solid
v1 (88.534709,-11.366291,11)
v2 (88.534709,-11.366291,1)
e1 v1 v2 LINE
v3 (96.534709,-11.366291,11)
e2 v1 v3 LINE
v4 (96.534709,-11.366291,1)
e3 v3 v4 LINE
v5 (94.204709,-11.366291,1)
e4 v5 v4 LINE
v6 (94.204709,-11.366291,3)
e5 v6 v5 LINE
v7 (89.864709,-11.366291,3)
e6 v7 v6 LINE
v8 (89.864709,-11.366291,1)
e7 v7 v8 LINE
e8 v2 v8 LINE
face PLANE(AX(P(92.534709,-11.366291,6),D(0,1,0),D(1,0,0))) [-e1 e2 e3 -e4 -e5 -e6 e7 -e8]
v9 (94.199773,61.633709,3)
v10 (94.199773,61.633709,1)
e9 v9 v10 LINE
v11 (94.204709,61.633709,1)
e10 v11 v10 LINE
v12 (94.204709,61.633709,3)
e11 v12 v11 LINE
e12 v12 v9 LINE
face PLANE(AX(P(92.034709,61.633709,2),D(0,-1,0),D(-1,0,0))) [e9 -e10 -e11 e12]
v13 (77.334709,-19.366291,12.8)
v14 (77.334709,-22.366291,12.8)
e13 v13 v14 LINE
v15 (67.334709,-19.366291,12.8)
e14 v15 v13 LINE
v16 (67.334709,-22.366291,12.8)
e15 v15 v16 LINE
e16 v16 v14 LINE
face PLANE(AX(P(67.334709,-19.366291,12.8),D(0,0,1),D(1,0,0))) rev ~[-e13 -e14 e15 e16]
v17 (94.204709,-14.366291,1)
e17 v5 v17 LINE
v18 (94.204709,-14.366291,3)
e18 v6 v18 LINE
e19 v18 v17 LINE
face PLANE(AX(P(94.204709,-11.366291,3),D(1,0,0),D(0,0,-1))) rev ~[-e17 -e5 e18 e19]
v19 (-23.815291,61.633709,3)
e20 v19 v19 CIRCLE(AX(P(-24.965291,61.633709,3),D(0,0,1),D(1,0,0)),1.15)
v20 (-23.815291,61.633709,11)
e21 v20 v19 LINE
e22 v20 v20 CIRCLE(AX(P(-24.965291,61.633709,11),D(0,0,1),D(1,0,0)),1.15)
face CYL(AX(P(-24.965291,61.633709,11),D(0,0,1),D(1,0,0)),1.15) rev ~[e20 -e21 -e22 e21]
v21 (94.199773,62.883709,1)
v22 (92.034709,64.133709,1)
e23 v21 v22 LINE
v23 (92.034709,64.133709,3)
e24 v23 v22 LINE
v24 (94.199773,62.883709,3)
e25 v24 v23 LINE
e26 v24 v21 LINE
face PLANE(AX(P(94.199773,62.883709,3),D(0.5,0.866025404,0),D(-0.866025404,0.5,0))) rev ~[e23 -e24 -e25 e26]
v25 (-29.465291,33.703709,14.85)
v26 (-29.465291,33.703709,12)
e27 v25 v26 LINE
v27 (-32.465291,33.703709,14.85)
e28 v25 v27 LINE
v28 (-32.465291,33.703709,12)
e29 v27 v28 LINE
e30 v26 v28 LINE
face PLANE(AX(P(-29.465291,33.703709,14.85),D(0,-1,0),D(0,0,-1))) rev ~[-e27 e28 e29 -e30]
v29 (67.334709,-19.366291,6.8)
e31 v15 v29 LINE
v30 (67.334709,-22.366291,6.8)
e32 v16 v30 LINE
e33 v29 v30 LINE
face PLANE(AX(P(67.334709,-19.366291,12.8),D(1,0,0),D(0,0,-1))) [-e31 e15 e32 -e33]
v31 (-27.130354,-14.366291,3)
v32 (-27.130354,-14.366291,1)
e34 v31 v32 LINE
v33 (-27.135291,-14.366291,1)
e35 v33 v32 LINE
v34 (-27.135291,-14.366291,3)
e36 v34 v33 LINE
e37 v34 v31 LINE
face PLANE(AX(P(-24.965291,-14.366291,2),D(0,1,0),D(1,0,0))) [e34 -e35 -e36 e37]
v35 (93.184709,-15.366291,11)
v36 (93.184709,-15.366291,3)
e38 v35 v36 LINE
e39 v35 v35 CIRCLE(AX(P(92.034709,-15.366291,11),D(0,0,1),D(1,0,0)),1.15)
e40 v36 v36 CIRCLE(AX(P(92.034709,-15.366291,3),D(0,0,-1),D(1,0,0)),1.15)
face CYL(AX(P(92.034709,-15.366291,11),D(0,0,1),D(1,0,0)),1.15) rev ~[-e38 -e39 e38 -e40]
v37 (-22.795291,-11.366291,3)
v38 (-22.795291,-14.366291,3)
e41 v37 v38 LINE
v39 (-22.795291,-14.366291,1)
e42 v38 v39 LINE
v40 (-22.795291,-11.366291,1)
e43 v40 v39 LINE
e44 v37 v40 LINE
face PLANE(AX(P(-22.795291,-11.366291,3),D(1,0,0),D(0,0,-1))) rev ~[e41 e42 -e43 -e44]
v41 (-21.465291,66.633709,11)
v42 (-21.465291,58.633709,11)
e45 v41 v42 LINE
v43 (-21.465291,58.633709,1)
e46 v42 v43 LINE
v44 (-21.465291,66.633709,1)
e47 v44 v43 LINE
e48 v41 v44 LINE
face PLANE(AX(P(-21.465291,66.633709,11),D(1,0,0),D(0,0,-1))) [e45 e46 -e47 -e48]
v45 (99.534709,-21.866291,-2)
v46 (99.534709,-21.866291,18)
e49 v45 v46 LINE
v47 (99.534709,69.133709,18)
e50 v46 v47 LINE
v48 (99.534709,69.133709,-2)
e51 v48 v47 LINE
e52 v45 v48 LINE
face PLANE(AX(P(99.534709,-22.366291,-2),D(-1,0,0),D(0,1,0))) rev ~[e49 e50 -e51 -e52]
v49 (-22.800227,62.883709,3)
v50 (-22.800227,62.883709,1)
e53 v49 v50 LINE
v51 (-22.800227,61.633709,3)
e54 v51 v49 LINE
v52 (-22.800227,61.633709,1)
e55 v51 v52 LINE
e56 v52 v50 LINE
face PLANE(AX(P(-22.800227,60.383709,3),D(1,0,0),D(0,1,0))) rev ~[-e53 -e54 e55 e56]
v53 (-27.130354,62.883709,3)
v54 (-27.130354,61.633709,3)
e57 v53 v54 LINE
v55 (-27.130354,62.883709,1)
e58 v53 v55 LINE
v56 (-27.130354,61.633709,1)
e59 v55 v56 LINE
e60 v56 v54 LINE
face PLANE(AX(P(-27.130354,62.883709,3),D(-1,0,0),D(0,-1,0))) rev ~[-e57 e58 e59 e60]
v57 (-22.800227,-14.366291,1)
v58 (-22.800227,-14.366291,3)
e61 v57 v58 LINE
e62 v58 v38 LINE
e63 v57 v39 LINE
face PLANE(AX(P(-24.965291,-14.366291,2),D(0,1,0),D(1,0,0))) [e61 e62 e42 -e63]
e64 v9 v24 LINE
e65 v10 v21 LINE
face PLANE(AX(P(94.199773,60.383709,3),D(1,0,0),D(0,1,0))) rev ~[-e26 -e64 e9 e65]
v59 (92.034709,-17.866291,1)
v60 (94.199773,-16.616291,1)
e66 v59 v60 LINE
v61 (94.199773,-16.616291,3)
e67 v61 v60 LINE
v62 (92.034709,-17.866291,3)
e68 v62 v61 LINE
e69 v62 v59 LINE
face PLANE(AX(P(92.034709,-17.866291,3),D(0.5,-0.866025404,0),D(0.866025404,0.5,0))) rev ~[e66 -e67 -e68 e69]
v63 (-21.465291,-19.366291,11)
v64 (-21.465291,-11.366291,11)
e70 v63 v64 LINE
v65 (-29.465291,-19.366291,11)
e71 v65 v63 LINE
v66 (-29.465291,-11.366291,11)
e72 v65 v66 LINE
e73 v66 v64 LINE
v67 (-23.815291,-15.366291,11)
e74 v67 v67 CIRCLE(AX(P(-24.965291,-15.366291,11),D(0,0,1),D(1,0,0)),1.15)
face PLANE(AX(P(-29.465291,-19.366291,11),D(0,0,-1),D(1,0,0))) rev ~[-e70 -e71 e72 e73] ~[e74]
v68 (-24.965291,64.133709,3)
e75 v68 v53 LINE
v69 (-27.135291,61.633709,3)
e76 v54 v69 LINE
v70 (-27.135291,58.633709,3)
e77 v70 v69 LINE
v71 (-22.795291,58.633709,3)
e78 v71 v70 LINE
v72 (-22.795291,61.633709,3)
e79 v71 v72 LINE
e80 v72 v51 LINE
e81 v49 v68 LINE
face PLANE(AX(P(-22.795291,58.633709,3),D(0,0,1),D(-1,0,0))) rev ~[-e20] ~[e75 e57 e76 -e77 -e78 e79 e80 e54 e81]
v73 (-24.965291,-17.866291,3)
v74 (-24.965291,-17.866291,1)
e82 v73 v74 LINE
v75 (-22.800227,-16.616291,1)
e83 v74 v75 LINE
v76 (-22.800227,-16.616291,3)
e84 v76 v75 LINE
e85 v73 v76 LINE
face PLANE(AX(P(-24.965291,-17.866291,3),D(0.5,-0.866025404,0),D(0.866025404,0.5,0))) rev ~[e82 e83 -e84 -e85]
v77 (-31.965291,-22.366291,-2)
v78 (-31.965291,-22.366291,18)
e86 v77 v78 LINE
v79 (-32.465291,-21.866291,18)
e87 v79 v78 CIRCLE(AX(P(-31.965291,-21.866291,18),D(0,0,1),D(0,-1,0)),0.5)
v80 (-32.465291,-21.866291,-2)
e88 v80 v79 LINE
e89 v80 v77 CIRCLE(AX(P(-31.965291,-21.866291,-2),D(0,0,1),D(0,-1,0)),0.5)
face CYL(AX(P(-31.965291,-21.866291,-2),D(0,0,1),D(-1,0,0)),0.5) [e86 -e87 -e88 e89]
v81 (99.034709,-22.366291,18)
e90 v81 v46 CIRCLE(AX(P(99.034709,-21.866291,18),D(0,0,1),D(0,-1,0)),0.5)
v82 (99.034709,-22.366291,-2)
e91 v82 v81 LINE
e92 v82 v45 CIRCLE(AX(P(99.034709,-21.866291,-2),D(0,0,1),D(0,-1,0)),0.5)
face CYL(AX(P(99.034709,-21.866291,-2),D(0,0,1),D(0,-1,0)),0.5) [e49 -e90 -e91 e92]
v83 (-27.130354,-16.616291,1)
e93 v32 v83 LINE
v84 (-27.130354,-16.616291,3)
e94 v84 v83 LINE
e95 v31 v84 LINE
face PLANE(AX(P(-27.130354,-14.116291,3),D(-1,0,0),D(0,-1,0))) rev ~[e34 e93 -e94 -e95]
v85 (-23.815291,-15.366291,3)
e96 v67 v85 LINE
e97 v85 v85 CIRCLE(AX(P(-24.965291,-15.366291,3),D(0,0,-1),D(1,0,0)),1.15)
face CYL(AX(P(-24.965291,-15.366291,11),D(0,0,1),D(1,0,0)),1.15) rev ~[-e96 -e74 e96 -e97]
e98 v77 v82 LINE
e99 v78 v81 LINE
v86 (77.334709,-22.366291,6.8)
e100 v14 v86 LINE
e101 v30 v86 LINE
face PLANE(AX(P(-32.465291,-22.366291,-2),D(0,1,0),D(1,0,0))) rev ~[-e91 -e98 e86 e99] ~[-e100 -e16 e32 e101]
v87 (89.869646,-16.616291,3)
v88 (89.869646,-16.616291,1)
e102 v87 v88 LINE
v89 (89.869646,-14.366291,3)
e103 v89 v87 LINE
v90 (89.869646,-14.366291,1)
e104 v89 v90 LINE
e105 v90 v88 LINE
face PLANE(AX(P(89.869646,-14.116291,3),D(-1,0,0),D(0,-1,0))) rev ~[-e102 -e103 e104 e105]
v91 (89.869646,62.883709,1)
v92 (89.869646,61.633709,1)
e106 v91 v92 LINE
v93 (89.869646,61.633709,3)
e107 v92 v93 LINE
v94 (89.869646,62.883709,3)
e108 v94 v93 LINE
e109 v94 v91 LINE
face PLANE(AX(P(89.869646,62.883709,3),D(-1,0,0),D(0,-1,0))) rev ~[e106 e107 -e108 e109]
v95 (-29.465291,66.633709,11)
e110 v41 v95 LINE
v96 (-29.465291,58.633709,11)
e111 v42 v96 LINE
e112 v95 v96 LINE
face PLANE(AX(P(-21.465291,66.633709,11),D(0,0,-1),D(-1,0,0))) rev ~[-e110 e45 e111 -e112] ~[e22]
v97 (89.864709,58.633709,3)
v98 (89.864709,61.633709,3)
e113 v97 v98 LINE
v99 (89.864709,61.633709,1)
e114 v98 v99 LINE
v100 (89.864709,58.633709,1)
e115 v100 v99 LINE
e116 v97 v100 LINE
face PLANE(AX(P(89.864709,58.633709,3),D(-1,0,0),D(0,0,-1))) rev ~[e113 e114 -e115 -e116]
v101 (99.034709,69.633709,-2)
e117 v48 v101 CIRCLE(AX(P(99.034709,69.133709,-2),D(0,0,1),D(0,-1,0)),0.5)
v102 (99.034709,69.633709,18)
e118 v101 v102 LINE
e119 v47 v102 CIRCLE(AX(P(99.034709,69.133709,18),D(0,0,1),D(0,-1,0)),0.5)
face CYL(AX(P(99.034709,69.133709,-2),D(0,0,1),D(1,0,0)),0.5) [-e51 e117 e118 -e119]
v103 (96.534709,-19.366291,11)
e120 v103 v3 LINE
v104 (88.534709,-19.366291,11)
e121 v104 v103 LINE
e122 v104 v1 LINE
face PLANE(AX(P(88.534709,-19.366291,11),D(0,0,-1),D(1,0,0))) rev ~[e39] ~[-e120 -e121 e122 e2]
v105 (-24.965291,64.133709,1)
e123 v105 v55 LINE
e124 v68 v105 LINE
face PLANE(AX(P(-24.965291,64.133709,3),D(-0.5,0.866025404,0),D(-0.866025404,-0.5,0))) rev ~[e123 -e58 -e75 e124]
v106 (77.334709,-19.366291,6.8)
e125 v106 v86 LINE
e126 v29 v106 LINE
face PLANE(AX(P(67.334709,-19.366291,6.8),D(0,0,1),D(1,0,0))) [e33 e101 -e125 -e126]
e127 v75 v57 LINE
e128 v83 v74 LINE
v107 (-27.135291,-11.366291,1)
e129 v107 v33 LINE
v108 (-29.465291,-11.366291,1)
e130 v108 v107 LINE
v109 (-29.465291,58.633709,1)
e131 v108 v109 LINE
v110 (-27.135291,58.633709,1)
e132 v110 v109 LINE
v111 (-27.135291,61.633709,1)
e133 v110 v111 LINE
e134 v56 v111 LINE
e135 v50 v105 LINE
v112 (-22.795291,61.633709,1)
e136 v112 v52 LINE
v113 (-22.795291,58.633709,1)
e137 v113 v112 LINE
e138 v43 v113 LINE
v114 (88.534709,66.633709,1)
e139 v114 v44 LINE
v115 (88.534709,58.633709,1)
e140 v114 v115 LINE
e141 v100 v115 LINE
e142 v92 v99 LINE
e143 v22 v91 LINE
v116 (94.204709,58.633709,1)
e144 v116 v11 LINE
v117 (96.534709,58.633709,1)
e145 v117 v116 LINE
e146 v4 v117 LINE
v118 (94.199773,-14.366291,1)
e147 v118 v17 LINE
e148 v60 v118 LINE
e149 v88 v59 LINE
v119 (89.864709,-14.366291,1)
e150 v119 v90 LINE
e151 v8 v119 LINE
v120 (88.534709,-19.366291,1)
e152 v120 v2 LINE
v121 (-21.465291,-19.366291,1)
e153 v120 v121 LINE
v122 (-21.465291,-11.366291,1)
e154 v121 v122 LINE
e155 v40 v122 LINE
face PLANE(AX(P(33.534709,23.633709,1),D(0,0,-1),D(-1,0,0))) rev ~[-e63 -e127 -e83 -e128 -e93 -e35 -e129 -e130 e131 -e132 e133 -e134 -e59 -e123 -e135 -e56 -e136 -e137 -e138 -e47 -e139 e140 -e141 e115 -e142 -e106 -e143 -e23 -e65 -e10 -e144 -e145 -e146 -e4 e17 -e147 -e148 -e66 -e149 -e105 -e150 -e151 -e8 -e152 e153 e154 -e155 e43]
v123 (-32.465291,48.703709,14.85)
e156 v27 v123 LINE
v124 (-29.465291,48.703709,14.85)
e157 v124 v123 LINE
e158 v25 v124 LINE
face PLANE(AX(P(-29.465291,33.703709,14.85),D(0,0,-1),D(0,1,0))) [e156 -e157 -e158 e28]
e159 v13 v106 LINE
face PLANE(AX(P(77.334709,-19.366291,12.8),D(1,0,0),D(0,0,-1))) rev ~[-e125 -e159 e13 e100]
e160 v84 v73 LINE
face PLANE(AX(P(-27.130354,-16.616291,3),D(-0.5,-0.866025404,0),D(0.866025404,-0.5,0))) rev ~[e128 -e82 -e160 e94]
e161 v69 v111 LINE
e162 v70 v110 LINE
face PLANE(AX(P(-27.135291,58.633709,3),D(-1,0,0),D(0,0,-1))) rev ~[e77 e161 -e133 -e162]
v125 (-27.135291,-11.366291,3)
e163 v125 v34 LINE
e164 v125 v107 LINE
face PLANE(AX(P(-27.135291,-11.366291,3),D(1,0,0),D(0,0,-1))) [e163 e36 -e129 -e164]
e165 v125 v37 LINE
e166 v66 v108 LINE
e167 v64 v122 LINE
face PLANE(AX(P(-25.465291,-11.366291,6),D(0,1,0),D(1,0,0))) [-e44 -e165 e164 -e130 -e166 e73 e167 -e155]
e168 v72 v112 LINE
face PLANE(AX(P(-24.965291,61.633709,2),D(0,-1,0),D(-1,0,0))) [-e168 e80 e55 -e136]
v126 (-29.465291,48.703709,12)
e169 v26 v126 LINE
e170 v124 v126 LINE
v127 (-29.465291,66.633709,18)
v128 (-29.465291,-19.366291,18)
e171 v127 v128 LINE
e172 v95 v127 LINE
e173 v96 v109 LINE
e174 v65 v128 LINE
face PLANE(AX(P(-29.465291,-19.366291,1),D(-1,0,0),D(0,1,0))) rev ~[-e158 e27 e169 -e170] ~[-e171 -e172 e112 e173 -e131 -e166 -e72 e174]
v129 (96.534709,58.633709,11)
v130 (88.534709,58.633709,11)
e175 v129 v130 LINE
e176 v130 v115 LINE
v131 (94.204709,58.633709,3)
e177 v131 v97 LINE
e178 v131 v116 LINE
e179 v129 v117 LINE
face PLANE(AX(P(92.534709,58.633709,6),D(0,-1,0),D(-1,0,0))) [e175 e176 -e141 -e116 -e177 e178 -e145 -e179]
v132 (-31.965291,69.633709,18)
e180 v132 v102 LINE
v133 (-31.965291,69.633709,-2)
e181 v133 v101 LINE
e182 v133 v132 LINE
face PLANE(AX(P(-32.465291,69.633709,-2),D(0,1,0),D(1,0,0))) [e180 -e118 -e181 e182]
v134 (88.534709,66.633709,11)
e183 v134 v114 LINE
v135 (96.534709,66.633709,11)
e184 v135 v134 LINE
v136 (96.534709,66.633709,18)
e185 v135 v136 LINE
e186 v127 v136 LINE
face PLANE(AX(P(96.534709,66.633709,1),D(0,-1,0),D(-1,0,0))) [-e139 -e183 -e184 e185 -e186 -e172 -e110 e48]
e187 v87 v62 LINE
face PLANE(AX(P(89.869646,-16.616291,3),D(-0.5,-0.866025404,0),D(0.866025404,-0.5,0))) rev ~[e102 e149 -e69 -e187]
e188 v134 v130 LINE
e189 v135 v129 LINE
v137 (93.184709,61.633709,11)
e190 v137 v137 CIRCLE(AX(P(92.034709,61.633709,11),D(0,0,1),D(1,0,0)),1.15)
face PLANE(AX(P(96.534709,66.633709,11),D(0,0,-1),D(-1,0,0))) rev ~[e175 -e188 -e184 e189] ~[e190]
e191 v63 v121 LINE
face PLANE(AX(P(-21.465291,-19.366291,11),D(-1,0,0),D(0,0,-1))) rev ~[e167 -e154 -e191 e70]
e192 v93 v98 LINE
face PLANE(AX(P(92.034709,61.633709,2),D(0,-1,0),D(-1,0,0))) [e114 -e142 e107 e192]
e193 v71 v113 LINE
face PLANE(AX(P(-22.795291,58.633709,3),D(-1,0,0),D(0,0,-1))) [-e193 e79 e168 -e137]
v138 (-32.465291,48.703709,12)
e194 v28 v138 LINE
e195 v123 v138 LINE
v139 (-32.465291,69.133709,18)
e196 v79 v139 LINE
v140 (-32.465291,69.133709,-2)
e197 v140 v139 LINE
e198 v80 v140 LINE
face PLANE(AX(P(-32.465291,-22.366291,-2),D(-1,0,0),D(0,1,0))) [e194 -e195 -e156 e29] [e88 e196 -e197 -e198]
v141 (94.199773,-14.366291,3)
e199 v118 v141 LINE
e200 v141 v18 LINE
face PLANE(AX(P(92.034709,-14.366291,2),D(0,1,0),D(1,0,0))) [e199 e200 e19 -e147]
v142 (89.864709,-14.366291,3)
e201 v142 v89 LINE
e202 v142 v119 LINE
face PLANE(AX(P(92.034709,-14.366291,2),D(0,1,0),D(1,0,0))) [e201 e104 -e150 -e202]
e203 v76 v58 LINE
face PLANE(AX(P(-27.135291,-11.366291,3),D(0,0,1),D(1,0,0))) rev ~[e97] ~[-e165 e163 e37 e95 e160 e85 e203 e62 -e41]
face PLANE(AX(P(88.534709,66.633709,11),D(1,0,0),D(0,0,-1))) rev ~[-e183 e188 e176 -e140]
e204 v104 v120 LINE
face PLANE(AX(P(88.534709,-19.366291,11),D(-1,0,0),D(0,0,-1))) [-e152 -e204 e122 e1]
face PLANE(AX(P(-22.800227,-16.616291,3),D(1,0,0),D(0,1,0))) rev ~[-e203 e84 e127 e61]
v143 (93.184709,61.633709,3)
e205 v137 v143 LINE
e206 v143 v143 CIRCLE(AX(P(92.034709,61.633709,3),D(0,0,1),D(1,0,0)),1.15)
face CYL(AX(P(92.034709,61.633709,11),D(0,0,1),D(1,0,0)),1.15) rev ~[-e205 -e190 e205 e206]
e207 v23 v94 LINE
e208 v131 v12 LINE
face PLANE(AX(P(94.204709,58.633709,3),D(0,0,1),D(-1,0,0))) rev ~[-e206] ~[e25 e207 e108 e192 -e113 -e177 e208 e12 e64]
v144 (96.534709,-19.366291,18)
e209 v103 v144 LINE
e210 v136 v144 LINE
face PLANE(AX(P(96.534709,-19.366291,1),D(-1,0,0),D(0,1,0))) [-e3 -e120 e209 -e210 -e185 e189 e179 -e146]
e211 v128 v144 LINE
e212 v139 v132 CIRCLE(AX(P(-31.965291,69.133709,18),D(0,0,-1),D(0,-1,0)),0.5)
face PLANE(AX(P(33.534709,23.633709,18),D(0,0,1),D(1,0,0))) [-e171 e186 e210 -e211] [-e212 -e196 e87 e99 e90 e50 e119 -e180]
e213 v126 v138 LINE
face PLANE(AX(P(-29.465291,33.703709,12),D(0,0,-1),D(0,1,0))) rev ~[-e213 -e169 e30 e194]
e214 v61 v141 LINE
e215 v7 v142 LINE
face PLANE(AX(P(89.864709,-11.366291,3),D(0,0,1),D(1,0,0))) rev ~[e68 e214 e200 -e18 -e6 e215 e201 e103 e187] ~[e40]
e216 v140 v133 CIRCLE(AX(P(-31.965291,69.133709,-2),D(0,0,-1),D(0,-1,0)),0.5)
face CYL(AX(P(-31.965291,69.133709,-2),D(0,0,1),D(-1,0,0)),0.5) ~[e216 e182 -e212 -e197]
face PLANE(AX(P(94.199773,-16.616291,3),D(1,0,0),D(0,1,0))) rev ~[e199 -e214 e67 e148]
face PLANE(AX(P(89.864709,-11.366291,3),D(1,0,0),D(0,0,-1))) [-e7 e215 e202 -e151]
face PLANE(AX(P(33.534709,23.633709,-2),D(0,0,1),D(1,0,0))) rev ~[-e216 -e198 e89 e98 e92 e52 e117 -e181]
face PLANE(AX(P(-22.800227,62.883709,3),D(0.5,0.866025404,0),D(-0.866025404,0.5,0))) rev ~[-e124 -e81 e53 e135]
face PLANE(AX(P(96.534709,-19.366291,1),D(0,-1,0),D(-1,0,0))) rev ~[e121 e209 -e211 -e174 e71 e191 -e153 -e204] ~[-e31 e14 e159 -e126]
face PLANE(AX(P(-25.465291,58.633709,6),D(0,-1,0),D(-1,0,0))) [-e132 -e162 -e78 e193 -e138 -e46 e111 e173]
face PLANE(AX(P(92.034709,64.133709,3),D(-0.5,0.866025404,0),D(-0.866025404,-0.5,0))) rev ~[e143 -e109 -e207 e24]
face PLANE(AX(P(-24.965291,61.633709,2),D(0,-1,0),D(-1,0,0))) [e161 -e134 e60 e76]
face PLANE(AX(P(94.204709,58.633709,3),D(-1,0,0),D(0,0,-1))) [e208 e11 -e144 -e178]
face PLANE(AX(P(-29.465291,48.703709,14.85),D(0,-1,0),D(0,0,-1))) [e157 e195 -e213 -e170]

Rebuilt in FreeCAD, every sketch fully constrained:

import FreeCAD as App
import Part
import Sketcher

V = App.Vector
Q = App.Units.Quantity


def edges_at(feature, points):
    """Names of the edges that pass closest to the given points."""
    edges = feature.Shape.Edges
    near = lambda p: min(range(len(edges)), key=lambda i: edges[i].distToShape(Part.Vertex(*p))[0])
    return sorted({f"Edge{near(p) + 1}" for p in points})


def add_polygon(sketch, points):
    """Adds a closed chain of lines whose ends are joined by coincident constraints."""
    first, n = sketch.GeometryCount, len(points)
    for a, b in zip(points, points[1:] + points[:1]):
        sketch.addGeometry(Part.LineSegment(App.Vector(*a, 0), App.Vector(*b, 0)), False)
    for i in range(n):
        sketch.addConstraint(Sketcher.Constraint("Coincident", first + i, 2, first + (i + 1) % n, 1))

doc = App.newDocument("Part")
params = doc.addObject("Spreadsheet::Sheet", "Params")
for row, (alias, value) in enumerate([
    ("sketch1_width", "132 mm"),
    ("sketch1_height", "92 mm"),
    ("pad1_length", "18 mm"),
    ("pad1_length2", "2 mm"),
    ("sketch2_width", "126 mm"),
    ("sketch2_height", "86 mm"),
    ("sketch3_width", "8 mm"),
    ("sketch3_height", "10 mm"),
    ("pad2_length", "8 mm"),
    ("sketch4_width", "8 mm"),
    ("sketch4_height", "10 mm"),
    ("pad3_length", "8 mm"),
    ("sketch5_width", "8 mm"),
    ("sketch5_height", "10 mm"),
    ("pad4_length", "8 mm"),
    ("sketch6_width", "8 mm"),
    ("sketch6_height", "10 mm"),
    ("pad5_length", "8 mm"),
    ("sketch7_diameter", "2.3 mm"),
    ("pocket2_length", "10 mm"),
    ("sketch8_diameter", "2.3 mm"),
    ("pocket3_length", "10 mm"),
    ("sketch9_diameter", "2.3 mm"),
    ("pocket4_length", "10 mm"),
    ("sketch10_diameter", "2.3 mm"),
    ("pocket5_length", "10 mm"),
    ("sketch11_height", "2.5 mm"),
    ("pocket6_length", "2 mm"),
    ("sketch12_height", "2 mm"),
    ("sketch12_width", "4.34 mm"),
    ("pocket7_length", "3 mm"),
    ("sketch13_height", "2.5 mm"),
    ("pocket8_length", "2 mm"),
    ("sketch14_height", "2 mm"),
    ("sketch14_width", "4.34 mm"),
    ("pocket9_length", "3 mm"),
    ("sketch15_height", "2.5 mm"),
    ("pocket10_length", "2 mm"),
    ("sketch16_height", "2 mm"),
    ("sketch16_width", "4.34 mm"),
    ("pocket11_length", "3 mm"),
    ("sketch17_height", "2.5 mm"),
    ("pocket12_length", "2 mm"),
    ("sketch18_height", "2 mm"),
    ("sketch18_width", "4.34 mm"),
    ("pocket13_length", "3 mm"),
    ("sketch19_width", "10 mm"),
    ("sketch19_height", "6 mm"),
    ("pocket14_length", "3 mm"),
    ("sketch20_width", "15 mm"),
    ("sketch20_height", "2.85 mm"),
    ("pocket15_length", "3 mm"),
    ("fillet_radius", "0.5 mm"),
    ("fillet2_radius", "0.5 mm"),
    ("fillet3_radius", "0.5 mm"),
    ("fillet4_radius", "0.5 mm"),
], start=1):
    params.set(f"A{row}", alias)
    params.set(f"B{row}", "=" + value)
    params.setAlias(f"B{row}", alias)

body = doc.addObject("PartDesign::Body", "Body")

sketch1 = body.newObject("Sketcher::SketchObject", "Sketch")
sketch1.AttachmentSupport = (doc.getObject("XY_Plane"), [""])
sketch1.MapMode = "FlatFace"
add_polygon(sketch1, [(-32, 70), (-32, -22), (100, -22), (100, 70)])
sketch1.addConstraint(Sketcher.Constraint("Vertical", 0))
sketch1.addConstraint(Sketcher.Constraint("Horizontal", 1))
sketch1.addConstraint(Sketcher.Constraint("Vertical", 2))
sketch1.addConstraint(Sketcher.Constraint("Horizontal", 3))
sketch1.addConstraint(Sketcher.Constraint("DistanceX", 1, 1, 1, 2, Q("132 mm")))
sketch1.addConstraint(Sketcher.Constraint("DistanceY", 0, 2, 0, 1, Q("92 mm")))
sketch1.addConstraint(Sketcher.Constraint("DistanceX", 0, 2, -1, 1, Q("32.465291 mm")))
sketch1.addConstraint(Sketcher.Constraint("DistanceY", 0, 2, -1, 1, Q("22.366291 mm")))
sketch1.setExpression("Constraints[8]", "Params.sketch1_width")
sketch1.setExpression("Constraints[9]", "Params.sketch1_height")
pad1 = body.newObject("PartDesign::Pad", "Pad")
pad1.Profile = sketch1
pad1.Type = "TwoLengths"
pad1.setExpression("Length", "Params.pad1_length")
pad1.setExpression("Length2", "Params.pad1_length2")

sketch2 = body.newObject("Sketcher::SketchObject", "Sketch001")
sketch2.AttachmentSupport = (doc.getObject("XY_Plane"), [""])
sketch2.MapMode = "FlatFace"
sketch2.AttachmentOffset = App.Placement(V(0, 0, 1), App.Rotation())
add_polygon(sketch2, [(97, 67), (97, -19), (-29, -19), (-29, 67)])
sketch2.addConstraint(Sketcher.Constraint("Vertical", 0))
sketch2.addConstraint(Sketcher.Constraint("Horizontal", 1))
sketch2.addConstraint(Sketcher.Constraint("Vertical", 2))
sketch2.addConstraint(Sketcher.Constraint("Horizontal", 3))
sketch2.addConstraint(Sketcher.Constraint("DistanceX", 1, 2, 1, 1, Q("126 mm")))
sketch2.addConstraint(Sketcher.Constraint("DistanceY", 0, 2, 0, 1, Q("86 mm")))
sketch2.addConstraint(Sketcher.Constraint("DistanceX", -1, 1, 0, 2, Q("96.534709 mm")))
sketch2.addConstraint(Sketcher.Constraint("DistanceY", 0, 2, -1, 1, Q("19.366291 mm")))
sketch2.setExpression("Constraints[8]", "Params.sketch2_width")
sketch2.setExpression("Constraints[9]", "Params.sketch2_height")
pocket1 = body.newObject("PartDesign::Pocket", "Pocket")
pocket1.Profile = sketch2
pocket1.Type = "ThroughAll"
pocket1.Reversed = True

sketch3 = body.newObject("Sketcher::SketchObject", "Sketch002")
sketch3.AttachmentSupport = (doc.getObject("XZ_Plane"), [""])
sketch3.MapMode = "FlatFace"
sketch3.AttachmentOffset = App.Placement(V(0, 0, -66.633709), App.Rotation())
add_polygon(sketch3, [(-21, 1), (-21, 11), (-29, 11), (-29, 1)])
sketch3.addConstraint(Sketcher.Constraint("Vertical", 0))
sketch3.addConstraint(Sketcher.Constraint("Horizontal", 1))
sketch3.addConstraint(Sketcher.Constraint("Vertical", 2))
sketch3.addConstraint(Sketcher.Constraint("Horizontal", 3))
sketch3.addConstraint(Sketcher.Constraint("DistanceX", 1, 2, 1, 1, Q("8 mm")))
sketch3.addConstraint(Sketcher.Constraint("DistanceY", 0, 1, 0, 2, Q("10 mm")))
sketch3.addConstraint(Sketcher.Constraint("DistanceY", -1, 1, 0, 2, Q("11 mm")))
sketch3.addConstraint(Sketcher.Constraint("DistanceX", 0, 2, -1, 1, Q("21.465291 mm")))
sketch3.setExpression("Constraints[8]", "Params.sketch3_width")
sketch3.setExpression("Constraints[9]", "Params.sketch3_height")
pad2 = body.newObject("PartDesign::Pad", "Pad001")
pad2.Profile = sketch3
pad2.setExpression("Length", "Params.pad2_length")

sketch4 = body.newObject("Sketcher::SketchObject", "Sketch003")
sketch4.AttachmentSupport = (doc.getObject("XZ_Plane"), [""])
sketch4.MapMode = "FlatFace"
sketch4.AttachmentOffset = App.Placement(V(0, 0, -66.633709), App.Rotation())
add_polygon(sketch4, [(97, 1), (97, 11), (89, 11), (89, 1)])
sketch4.addConstraint(Sketcher.Constraint("Vertical", 0))
sketch4.addConstraint(Sketcher.Constraint("Horizontal", 1))
sketch4.addConstraint(Sketcher.Constraint("Vertical", 2))
sketch4.addConstraint(Sketcher.Constraint("Horizontal", 3))
sketch4.addConstraint(Sketcher.Constraint("DistanceX", 1, 2, 1, 1, Q("8 mm")))
sketch4.addConstraint(Sketcher.Constraint("DistanceY", 0, 1, 0, 2, Q("10 mm")))
sketch4.addConstraint(Sketcher.Constraint("DistanceY", -1, 1, 0, 2, Q("11 mm")))
sketch4.addConstraint(Sketcher.Constraint("DistanceX", -1, 1, 0, 2, Q("96.534709 mm")))
sketch4.setExpression("Constraints[8]", "Params.sketch4_width")
sketch4.setExpression("Constraints[9]", "Params.sketch4_height")
pad3 = body.newObject("PartDesign::Pad", "Pad002")
pad3.Profile = sketch4
pad3.setExpression("Length", "Params.pad3_length")

sketch5 = body.newObject("Sketcher::SketchObject", "Sketch004")
sketch5.AttachmentSupport = (doc.getObject("XZ_Plane"), [""])
sketch5.MapMode = "FlatFace"
sketch5.AttachmentOffset = App.Placement(V(0, 0, 19.366291), App.Rotation())
add_polygon(sketch5, [(89, 1), (89, 11), (97, 11), (97, 1)])
sketch5.addConstraint(Sketcher.Constraint("Vertical", 0))
sketch5.addConstraint(Sketcher.Constraint("Horizontal", 1))
sketch5.addConstraint(Sketcher.Constraint("Vertical", 2))
sketch5.addConstraint(Sketcher.Constraint("Horizontal", 3))
sketch5.addConstraint(Sketcher.Constraint("DistanceX", 1, 1, 1, 2, Q("8 mm")))
sketch5.addConstraint(Sketcher.Constraint("DistanceY", 0, 1, 0, 2, Q("10 mm")))
sketch5.addConstraint(Sketcher.Constraint("DistanceY", -1, 1, 0, 2, Q("11 mm")))
sketch5.addConstraint(Sketcher.Constraint("DistanceX", -1, 1, 0, 2, Q("88.534709 mm")))
sketch5.setExpression("Constraints[8]", "Params.sketch5_width")
sketch5.setExpression("Constraints[9]", "Params.sketch5_height")
pad4 = body.newObject("PartDesign::Pad", "Pad003")
pad4.Profile = sketch5
pad4.setExpression("Length", "Params.pad4_length")
pad4.Reversed = True

sketch6 = body.newObject("Sketcher::SketchObject", "Sketch005")
sketch6.AttachmentSupport = (doc.getObject("XZ_Plane"), [""])
sketch6.MapMode = "FlatFace"
sketch6.AttachmentOffset = App.Placement(V(0, 0, 19.366291), App.Rotation())
add_polygon(sketch6, [(-29, 1), (-29, 11), (-21, 11), (-21, 1)])
sketch6.addConstraint(Sketcher.Constraint("Vertical", 0))
sketch6.addConstraint(Sketcher.Constraint("Horizontal", 1))
sketch6.addConstraint(Sketcher.Constraint("Vertical", 2))
sketch6.addConstraint(Sketcher.Constraint("Horizontal", 3))
sketch6.addConstraint(Sketcher.Constraint("DistanceX", 1, 1, 1, 2, Q("8 mm")))
sketch6.addConstraint(Sketcher.Constraint("DistanceY", 0, 1, 0, 2, Q("10 mm")))
sketch6.addConstraint(Sketcher.Constraint("DistanceY", -1, 1, 0, 2, Q("11 mm")))
sketch6.addConstraint(Sketcher.Constraint("DistanceX", 0, 2, -1, 1, Q("29.465291 mm")))
sketch6.setExpression("Constraints[8]", "Params.sketch6_width")
sketch6.setExpression("Constraints[9]", "Params.sketch6_height")
pad5 = body.newObject("PartDesign::Pad", "Pad004")
pad5.Profile = sketch6
pad5.setExpression("Length", "Params.pad5_length")
pad5.Reversed = True

sketch7 = body.newObject("Sketcher::SketchObject", "Sketch006")
sketch7.AttachmentSupport = (doc.getObject("XY_Plane"), [""])
sketch7.MapMode = "FlatFace"
sketch7.AttachmentOffset = App.Placement(V(0, 0, 11), App.Rotation())
sketch7.addGeometry(Part.Circle(V(92, -15.4, 0), V(0, 0, 1), 1.1), False)
sketch7.addConstraint(Sketcher.Constraint("Diameter", 0, Q("2.3 mm")))
sketch7.addConstraint(Sketcher.Constraint("DistanceX", -1, 1, 0, 3, Q("92.034709 mm")))
sketch7.addConstraint(Sketcher.Constraint("DistanceY", 0, 3, -1, 1, Q("15.366291 mm")))
sketch7.setExpression("Constraints[0]", "Params.sketch7_diameter")
pocket2 = body.newObject("PartDesign::Pocket", "Pocket001")
pocket2.Profile = sketch7
pocket2.setExpression("Length", "Params.pocket2_length")

sketch8 = body.newObject("Sketcher::SketchObject", "Sketch007")
sketch8.AttachmentSupport = (doc.getObject("XY_Plane"), [""])
sketch8.MapMode = "FlatFace"
sketch8.AttachmentOffset = App.Placement(V(0, 0, 11), App.Rotation())
sketch8.addGeometry(Part.Circle(V(-25, -15.4, 0), V(0, 0, 1), 1.1), False)
sketch8.addConstraint(Sketcher.Constraint("Diameter", 0, Q("2.3 mm")))
sketch8.addConstraint(Sketcher.Constraint("DistanceX", 0, 3, -1, 1, Q("24.965291 mm")))
sketch8.addConstraint(Sketcher.Constraint("DistanceY", 0, 3, -1, 1, Q("15.366291 mm")))
sketch8.setExpression("Constraints[0]", "Params.sketch8_diameter")
pocket3 = body.newObject("PartDesign::Pocket", "Pocket002")
pocket3.Profile = sketch8
pocket3.setExpression("Length", "Params.pocket3_length")

sketch9 = body.newObject("Sketcher::SketchObject", "Sketch008")
sketch9.AttachmentSupport = (doc.getObject("XY_Plane"), [""])
sketch9.MapMode = "FlatFace"
sketch9.AttachmentOffset = App.Placement(V(0, 0, 11), App.Rotation())
sketch9.addGeometry(Part.Circle(V(-25, 61.6, 0), V(0, 0, 1), 1.1), False)
sketch9.addConstraint(Sketcher.Constraint("Diameter", 0, Q("2.3 mm")))
sketch9.addConstraint(Sketcher.Constraint("DistanceX", 0, 3, -1, 1, Q("24.965291 mm")))
sketch9.addConstraint(Sketcher.Constraint("DistanceY", -1, 1, 0, 3, Q("61.633709 mm")))
sketch9.setExpression("Constraints[0]", "Params.sketch9_diameter")
pocket4 = body.newObject("PartDesign::Pocket", "Pocket003")
pocket4.Profile = sketch9
pocket4.setExpression("Length", "Params.pocket4_length")

sketch10 = body.newObject("Sketcher::SketchObject", "Sketch009")
sketch10.AttachmentSupport = (doc.getObject("XY_Plane"), [""])
sketch10.MapMode = "FlatFace"
sketch10.AttachmentOffset = App.Placement(V(0, 0, 11), App.Rotation())
sketch10.addGeometry(Part.Circle(V(92, 61.6, 0), V(0, 0, 1), 1.1), False)
sketch10.addConstraint(Sketcher.Constraint("Diameter", 0, Q("2.3 mm")))
sketch10.addConstraint(Sketcher.Constraint("DistanceX", -1, 1, 0, 3, Q("92.034709 mm")))
sketch10.addConstraint(Sketcher.Constraint("DistanceY", -1, 1, 0, 3, Q("61.633709 mm")))
sketch10.setExpression("Constraints[0]", "Params.sketch10_diameter")
pocket5 = body.newObject("PartDesign::Pocket", "Pocket004")
pocket5.Profile = sketch10
pocket5.setExpression("Length", "Params.pocket5_length")

sketch11 = body.newObject("Sketcher::SketchObject", "Sketch010")
sketch11.AttachmentSupport = (doc.getObject("XY_Plane"), [""])
sketch11.MapMode = "FlatFace"
sketch11.AttachmentOffset = App.Placement(V(0, 0, 3), App.Rotation())
add_polygon(sketch11, [(89.9, -14.1), (89.9, -16.6), (92, -17.9), (94.2, -16.6), (94.2, -14.1), (92, -12.9)])
sketch11.addConstraint(Sketcher.Constraint("Vertical", 0))
sketch11.addConstraint(Sketcher.Constraint("Vertical", 3))
sketch11.addConstraint(Sketcher.Constraint("Parallel", 1, 4))
sketch11.addConstraint(Sketcher.Constraint("Parallel", 2, 5))
sketch11.addConstraint(Sketcher.Constraint("Horizontal", 0, 2, 2, 2))
sketch11.addConstraint(Sketcher.Constraint("Horizontal", 3, 2, 5, 2))
sketch11.addConstraint(Sketcher.Constraint("Vertical", 1, 2, 4, 2))
sketch11.addConstraint(Sketcher.Constraint("Angle", 1, Q("-30 deg")))
sketch11.addConstraint(Sketcher.Constraint("DistanceY", 0, 2, 0, 1, Q("2.5 mm")))
sketch11.addConstraint(Sketcher.Constraint("DistanceY", 1, 2, 4, 2, Q("5 mm")))
sketch11.addConstraint(Sketcher.Constraint("DistanceY", 0, 2, -1, 1, Q("16.616291 mm")))
sketch11.addConstraint(Sketcher.Constraint("DistanceX", -1, 1, 1, 2, Q("92.034709 mm")))
sketch11.setExpression("Constraints[14]", "Params.sketch11_height")
pocket6 = body.newObject("PartDesign::Pocket", "Pocket005")
pocket6.Profile = sketch11
pocket6.setExpression("Length", "Params.pocket6_length")

sketch12 = body.newObject("Sketcher::SketchObject", "Sketch011")
sketch12.AttachmentSupport = (doc.getObject("XZ_Plane"), [""])
sketch12.MapMode = "FlatFace"
sketch12.AttachmentOffset = App.Placement(V(0, 0, 11.366291), App.Rotation())
add_polygon(sketch12, [(89.9, 1), (89.9, 3), (94.2, 3), (94.2, 1)])
sketch12.addConstraint(Sketcher.Constraint("Vertical", 0))
sketch12.addConstraint(Sketcher.Constraint("Horizontal", 1))
sketch12.addConstraint(Sketcher.Constraint("Vertical", 2))
sketch12.addConstraint(Sketcher.Constraint("Horizontal", 3))
sketch12.addConstraint(Sketcher.Constraint("DistanceY", 0, 1, 0, 2, Q("2 mm")))
sketch12.addConstraint(Sketcher.Constraint("DistanceY", -1, 1, 0, 2, Q("3 mm")))
sketch12.addConstraint(Sketcher.Constraint("DistanceX", 1, 1, 1, 2, Q("4.34 mm")))
sketch12.addConstraint(Sketcher.Constraint("DistanceX", -1, 1, 0, 2, Q("89.864709 mm")))
sketch12.setExpression("Constraints[8]", "Params.sketch12_height")
sketch12.setExpression("Constraints[10]", "Params.sketch12_width")
pocket7 = body.newObject("PartDesign::Pocket", "Pocket006")
pocket7.Profile = sketch12
pocket7.setExpression("Length", "Params.pocket7_length")
pocket7.Reversed = True

sketch13 = body.newObject("Sketcher::SketchObject", "Sketch012")
sketch13.AttachmentSupport = (doc.getObject("XY_Plane"), [""])
sketch13.MapMode = "FlatFace"
sketch13.AttachmentOffset = App.Placement(V(0, 0, 3), App.Rotation())
add_polygon(sketch13, [(-22.8, -14.1), (-25, -12.9), (-27.1, -14.1), (-27.1, -16.6), (-25, -17.9), (-22.8, -16.6)])
sketch13.addConstraint(Sketcher.Constraint("Vertical", 2))
sketch13.addConstraint(Sketcher.Constraint("Vertical", 5))
sketch13.addConstraint(Sketcher.Constraint("Parallel", 0, 3))
sketch13.addConstraint(Sketcher.Constraint("Parallel", 1, 4))
sketch13.addConstraint(Sketcher.Constraint("Horizontal", 2, 2, 4, 2))
sketch13.addConstraint(Sketcher.Constraint("Horizontal", 1, 2, 5, 2))
sketch13.addConstraint(Sketcher.Constraint("Vertical", 0, 2, 3, 2))
sketch13.addConstraint(Sketcher.Constraint("Angle", 0, Q("150 deg")))
sketch13.addConstraint(Sketcher.Constraint("DistanceY", 2, 2, 2, 1, Q("2.5 mm")))
sketch13.addConstraint(Sketcher.Constraint("DistanceY", 3, 2, 0, 2, Q("5 mm")))
sketch13.addConstraint(Sketcher.Constraint("DistanceX", 0, 2, -1, 1, Q("24.965291 mm")))
sketch13.addConstraint(Sketcher.Constraint("DistanceY", 0, 2, -1, 1, Q("12.866291 mm")))
sketch13.setExpression("Constraints[14]", "Params.sketch13_height")
pocket8 = body.newObject("PartDesign::Pocket", "Pocket007")
pocket8.Profile = sketch13
pocket8.setExpression("Length", "Params.pocket8_length")

sketch14 = body.newObject("Sketcher::SketchObject", "Sketch013")
sketch14.AttachmentSupport = (doc.getObject("XZ_Plane"), [""])
sketch14.MapMode = "FlatFace"
sketch14.AttachmentOffset = App.Placement(V(0, 0, 11.366291), App.Rotation())
add_polygon(sketch14, [(-27.1, 1), (-27.1, 3), (-22.8, 3), (-22.8, 1)])
sketch14.addConstraint(Sketcher.Constraint("Vertical", 0))
sketch14.addConstraint(Sketcher.Constraint("Horizontal", 1))
sketch14.addConstraint(Sketcher.Constraint("Vertical", 2))
sketch14.addConstraint(Sketcher.Constraint("Horizontal", 3))
sketch14.addConstraint(Sketcher.Constraint("DistanceY", 0, 1, 0, 2, Q("2 mm")))
sketch14.addConstraint(Sketcher.Constraint("DistanceY", -1, 1, 0, 2, Q("3 mm")))
sketch14.addConstraint(Sketcher.Constraint("DistanceX", 1, 1, 1, 2, Q("4.34 mm")))
sketch14.addConstraint(Sketcher.Constraint("DistanceX", 0, 2, -1, 1, Q("27.135291 mm")))
sketch14.setExpression("Constraints[8]", "Params.sketch14_height")
sketch14.setExpression("Constraints[10]", "Params.sketch14_width")
pocket9 = body.newObject("PartDesign::Pocket", "Pocket008")
pocket9.Profile = sketch14
pocket9.setExpression("Length", "Params.pocket9_length")
pocket9.Reversed = True

sketch15 = body.newObject("Sketcher::SketchObject", "Sketch014")
sketch15.AttachmentSupport = (doc.getObject("XY_Plane"), [""])
sketch15.MapMode = "FlatFace"
sketch15.AttachmentOffset = App.Placement(V(0, 0, 3), App.Rotation())
add_polygon(sketch15, [(-25, 59.1), (-22.8, 60.4), (-22.8, 62.9), (-25, 64.1), (-27.1, 62.9), (-27.1, 60.4)])
sketch15.addConstraint(Sketcher.Constraint("Vertical", 1))
sketch15.addConstraint(Sketcher.Constraint("Vertical", 4))
sketch15.addConstraint(Sketcher.Constraint("Parallel", 0, 3))
sketch15.addConstraint(Sketcher.Constraint("Parallel", 2, 5))
sketch15.addConstraint(Sketcher.Constraint("Horizontal", 1, 2, 3, 2))
sketch15.addConstraint(Sketcher.Constraint("Horizontal", 0, 2, 4, 2))
sketch15.addConstraint(Sketcher.Constraint("Vertical", 2, 2, 5, 2))
sketch15.addConstraint(Sketcher.Constraint("Angle", 0, Q("30 deg")))
sketch15.addConstraint(Sketcher.Constraint("DistanceY", 1, 1, 1, 2, Q("2.5 mm")))
sketch15.addConstraint(Sketcher.Constraint("DistanceY", 5, 2, 2, 2, Q("5 mm")))
sketch15.addConstraint(Sketcher.Constraint("DistanceY", -1, 1, 0, 2, Q("60.383709 mm")))
sketch15.addConstraint(Sketcher.Constraint("DistanceX", 2, 2, -1, 1, Q("24.965291 mm")))
sketch15.setExpression("Constraints[14]", "Params.sketch15_height")
pocket10 = body.newObject("PartDesign::Pocket", "Pocket009")
pocket10.Profile = sketch15
pocket10.setExpression("Length", "Params.pocket10_length")

sketch16 = body.newObject("Sketcher::SketchObject", "Sketch015")
sketch16.AttachmentSupport = (doc.getObject("XZ_Plane"), [""])
sketch16.MapMode = "FlatFace"
sketch16.AttachmentOffset = App.Placement(V(0, 0, -58.633709), App.Rotation())
add_polygon(sketch16, [(-22.8, 1), (-22.8, 3), (-27.1, 3), (-27.1, 1)])
sketch16.addConstraint(Sketcher.Constraint("Vertical", 0))
sketch16.addConstraint(Sketcher.Constraint("Horizontal", 1))
sketch16.addConstraint(Sketcher.Constraint("Vertical", 2))
sketch16.addConstraint(Sketcher.Constraint("Horizontal", 3))
sketch16.addConstraint(Sketcher.Constraint("DistanceY", 0, 1, 0, 2, Q("2 mm")))
sketch16.addConstraint(Sketcher.Constraint("DistanceY", -1, 1, 0, 2, Q("3 mm")))
sketch16.addConstraint(Sketcher.Constraint("DistanceX", 1, 2, 1, 1, Q("4.34 mm")))
sketch16.addConstraint(Sketcher.Constraint("DistanceX", 0, 2, -1, 1, Q("22.795291 mm")))
sketch16.setExpression("Constraints[8]", "Params.sketch16_height")
sketch16.setExpression("Constraints[10]", "Params.sketch16_width")
pocket11 = body.newObject("PartDesign::Pocket", "Pocket010")
pocket11.Profile = sketch16
pocket11.setExpression("Length", "Params.pocket11_length")

sketch17 = body.newObject("Sketcher::SketchObject", "Sketch016")
sketch17.AttachmentSupport = (doc.getObject("XY_Plane"), [""])
sketch17.MapMode = "FlatFace"
sketch17.AttachmentOffset = App.Placement(V(0, 0, 3), App.Rotation())
add_polygon(sketch17, [(89.9, 60.4), (92, 59.1), (94.2, 60.4), (94.2, 62.9), (92, 64.1), (89.9, 62.9)])
sketch17.addConstraint(Sketcher.Constraint("Vertical", 2))
sketch17.addConstraint(Sketcher.Constraint("Vertical", 5))
sketch17.addConstraint(Sketcher.Constraint("Parallel", 0, 3))
sketch17.addConstraint(Sketcher.Constraint("Parallel", 1, 4))
sketch17.addConstraint(Sketcher.Constraint("Horizontal", 2, 2, 4, 2))
sketch17.addConstraint(Sketcher.Constraint("Horizontal", 1, 2, 5, 2))
sketch17.addConstraint(Sketcher.Constraint("Vertical", 0, 2, 3, 2))
sketch17.addConstraint(Sketcher.Constraint("Angle", 0, Q("-30 deg")))
sketch17.addConstraint(Sketcher.Constraint("DistanceY", 2, 1, 2, 2, Q("2.5 mm")))
sketch17.addConstraint(Sketcher.Constraint("DistanceY", 0, 2, 3, 2, Q("5 mm")))
sketch17.addConstraint(Sketcher.Constraint("DistanceX", -1, 1, 0, 2, Q("92.034709 mm")))
sketch17.addConstraint(Sketcher.Constraint("DistanceY", -1, 1, 0, 2, Q("59.133709 mm")))
sketch17.setExpression("Constraints[14]", "Params.sketch17_height")
pocket12 = body.newObject("PartDesign::Pocket", "Pocket011")
pocket12.Profile = sketch17
pocket12.setExpression("Length", "Params.pocket12_length")

sketch18 = body.newObject("Sketcher::SketchObject", "Sketch017")
sketch18.AttachmentSupport = (doc.getObject("XZ_Plane"), [""])
sketch18.MapMode = "FlatFace"
sketch18.AttachmentOffset = App.Placement(V(0, 0, -58.633709), App.Rotation())
add_polygon(sketch18, [(94.2, 1), (94.2, 3), (89.9, 3), (89.9, 1)])
sketch18.addConstraint(Sketcher.Constraint("Vertical", 0))
sketch18.addConstraint(Sketcher.Constraint("Horizontal", 1))
sketch18.addConstraint(Sketcher.Constraint("Vertical", 2))
sketch18.addConstraint(Sketcher.Constraint("Horizontal", 3))
sketch18.addConstraint(Sketcher.Constraint("DistanceY", 0, 1, 0, 2, Q("2 mm")))
sketch18.addConstraint(Sketcher.Constraint("DistanceY", -1, 1, 0, 2, Q("3 mm")))
sketch18.addConstraint(Sketcher.Constraint("DistanceX", 1, 2, 1, 1, Q("4.34 mm")))
sketch18.addConstraint(Sketcher.Constraint("DistanceX", -1, 1, 0, 2, Q("94.204709 mm")))
sketch18.setExpression("Constraints[8]", "Params.sketch18_height")
sketch18.setExpression("Constraints[10]", "Params.sketch18_width")
pocket13 = body.newObject("PartDesign::Pocket", "Pocket012")
pocket13.Profile = sketch18
pocket13.setExpression("Length", "Params.pocket13_length")

sketch19 = body.newObject("Sketcher::SketchObject", "Sketch018")
sketch19.AttachmentSupport = (doc.getObject("XZ_Plane"), [""])
sketch19.MapMode = "FlatFace"
sketch19.AttachmentOffset = App.Placement(V(0, 0, 19.366291), App.Rotation())
add_polygon(sketch19, [(67, 7), (67, 13), (77, 13), (77, 7)])
sketch19.addConstraint(Sketcher.Constraint("Vertical", 0))
sketch19.addConstraint(Sketcher.Constraint("Horizontal", 1))
sketch19.addConstraint(Sketcher.Constraint("Vertical", 2))
sketch19.addConstraint(Sketcher.Constraint("Horizontal", 3))
sketch19.addConstraint(Sketcher.Constraint("DistanceX", 1, 1, 1, 2, Q("10 mm")))
sketch19.addConstraint(Sketcher.Constraint("DistanceY", 0, 1, 0, 2, Q("6 mm")))
sketch19.addConstraint(Sketcher.Constraint("DistanceY", -1, 1, 0, 2, Q("12.8 mm")))
sketch19.addConstraint(Sketcher.Constraint("DistanceX", -1, 1, 0, 2, Q("67.334709 mm")))
sketch19.setExpression("Constraints[8]", "Params.sketch19_width")
sketch19.setExpression("Constraints[9]", "Params.sketch19_height")
pocket14 = body.newObject("PartDesign::Pocket", "Pocket013")
pocket14.Profile = sketch19
pocket14.setExpression("Length", "Params.pocket14_length")
pocket14.Reversed = True

sketch20 = body.newObject("Sketcher::SketchObject", "Sketch019")
sketch20.AttachmentSupport = (doc.getObject("YZ_Plane"), [""])
sketch20.MapMode = "FlatFace"
sketch20.AttachmentOffset = App.Placement(V(0, 0, -29.465291), App.Rotation())
add_polygon(sketch20, [(48.7, 14.8), (33.7, 14.8), (33.7, 12), (48.7, 12)])
sketch20.addConstraint(Sketcher.Constraint("Horizontal", 0))
sketch20.addConstraint(Sketcher.Constraint("Vertical", 1))
sketch20.addConstraint(Sketcher.Constraint("Horizontal", 2))
sketch20.addConstraint(Sketcher.Constraint("Vertical", 3))
sketch20.addConstraint(Sketcher.Constraint("DistanceX", 0, 2, 0, 1, Q("15 mm")))
sketch20.addConstraint(Sketcher.Constraint("DistanceY", -1, 1, 1, 2, Q("12 mm")))
sketch20.addConstraint(Sketcher.Constraint("DistanceY", 1, 2, 1, 1, Q("2.85 mm")))
sketch20.addConstraint(Sketcher.Constraint("DistanceX", -1, 1, 0, 2, Q("33.703709 mm")))
sketch20.setExpression("Constraints[8]", "Params.sketch20_width")
sketch20.setExpression("Constraints[10]", "Params.sketch20_height")
pocket15 = body.newObject("PartDesign::Pocket", "Pocket014")
pocket15.Profile = sketch20
pocket15.setExpression("Length", "Params.pocket15_length")
doc.recompute()

fillet = body.newObject("PartDesign::Fillet", "Fillet")
fillet.Base = (pocket15, edges_at(pocket15, [(-32.465, 69.634, 8)]))
fillet.setExpression("Radius", "Params.fillet_radius")
doc.recompute()

fillet2 = body.newObject("PartDesign::Fillet", "Fillet001")
fillet2.Base = (fillet, edges_at(fillet, [(-32.465, -22.366, 8)]))
fillet2.setExpression("Radius", "Params.fillet2_radius")
doc.recompute()

fillet3 = body.newObject("PartDesign::Fillet", "Fillet002")
fillet3.Base = (fillet2, edges_at(fillet2, [(99.535, -22.366, 8)]))
fillet3.setExpression("Radius", "Params.fillet3_radius")
doc.recompute()

fillet4 = body.newObject("PartDesign::Fillet", "Fillet003")
fillet4.Base = (fillet3, edges_at(fillet3, [(99.535, 69.634, 8)]))
fillet4.setExpression("Radius", "Params.fillet4_radius")

doc.recompute()
